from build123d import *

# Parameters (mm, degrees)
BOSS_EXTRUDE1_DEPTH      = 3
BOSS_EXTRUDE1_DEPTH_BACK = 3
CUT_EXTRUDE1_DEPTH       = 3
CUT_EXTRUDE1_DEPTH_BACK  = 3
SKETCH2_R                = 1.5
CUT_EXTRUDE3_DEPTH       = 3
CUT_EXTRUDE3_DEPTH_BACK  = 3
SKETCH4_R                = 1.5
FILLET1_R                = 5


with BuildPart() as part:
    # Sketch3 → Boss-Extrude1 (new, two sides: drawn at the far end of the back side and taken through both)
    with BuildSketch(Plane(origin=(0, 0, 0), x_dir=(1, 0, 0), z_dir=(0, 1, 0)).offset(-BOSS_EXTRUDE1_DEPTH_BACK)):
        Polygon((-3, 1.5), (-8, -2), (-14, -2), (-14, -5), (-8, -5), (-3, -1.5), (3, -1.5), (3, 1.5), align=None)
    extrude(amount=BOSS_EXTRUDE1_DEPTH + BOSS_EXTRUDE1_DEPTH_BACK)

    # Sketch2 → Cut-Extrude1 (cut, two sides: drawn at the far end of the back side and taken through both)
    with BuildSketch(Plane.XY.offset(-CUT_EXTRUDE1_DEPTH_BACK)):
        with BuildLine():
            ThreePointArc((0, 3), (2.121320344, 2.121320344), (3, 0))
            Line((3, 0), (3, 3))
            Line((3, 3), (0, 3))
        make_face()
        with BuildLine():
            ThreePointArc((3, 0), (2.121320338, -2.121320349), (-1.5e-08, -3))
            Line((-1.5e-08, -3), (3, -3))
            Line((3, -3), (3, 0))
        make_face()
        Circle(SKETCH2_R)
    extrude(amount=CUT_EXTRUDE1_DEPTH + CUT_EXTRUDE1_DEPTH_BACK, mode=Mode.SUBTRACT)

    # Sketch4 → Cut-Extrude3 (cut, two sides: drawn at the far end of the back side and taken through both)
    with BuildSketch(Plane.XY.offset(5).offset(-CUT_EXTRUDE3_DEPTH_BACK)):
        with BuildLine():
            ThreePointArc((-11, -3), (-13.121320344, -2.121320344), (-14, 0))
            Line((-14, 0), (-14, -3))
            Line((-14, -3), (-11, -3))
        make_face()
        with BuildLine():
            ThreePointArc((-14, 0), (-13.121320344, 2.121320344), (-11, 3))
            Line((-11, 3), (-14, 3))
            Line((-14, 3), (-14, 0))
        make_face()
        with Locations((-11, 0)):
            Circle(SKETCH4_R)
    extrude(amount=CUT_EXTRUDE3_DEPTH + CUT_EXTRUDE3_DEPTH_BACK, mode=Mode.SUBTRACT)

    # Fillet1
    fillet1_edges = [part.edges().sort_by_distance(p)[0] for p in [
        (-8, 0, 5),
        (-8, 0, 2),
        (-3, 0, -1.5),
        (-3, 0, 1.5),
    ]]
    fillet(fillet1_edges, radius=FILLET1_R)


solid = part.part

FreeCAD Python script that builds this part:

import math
import FreeCAD as App
import Part
import Sketcher

V = App.Vector
Q = App.Units.Quantity


def edges_at(feature, points):
    """Names of the edges that pass closest to the given points."""
    edges = feature.Shape.Edges
    near = lambda p: min(range(len(edges)), key=lambda i: edges[i].distToShape(Part.Vertex(*p))[0])
    return sorted({f"Edge{near(p) + 1}" for p in points})


def add_polygon(sketch, points):
    """Adds a closed chain of lines whose ends are joined by coincident constraints."""
    first, n = sketch.GeometryCount, len(points)
    for a, b in zip(points, points[1:] + points[:1]):
        sketch.addGeometry(Part.LineSegment(App.Vector(*a, 0), App.Vector(*b, 0)), False)
    for i in range(n):
        sketch.addConstraint(Sketcher.Constraint("Coincident", first + i, 2, first + (i + 1) % n, 1))

doc = App.newDocument("Part")
body = doc.addObject("PartDesign::Body", "Body")

sketch1 = body.newObject("Sketcher::SketchObject", "Sketch")
sketch1.AttachmentSupport = (doc.getObject("XZ_Plane"), [""])
sketch1.MapMode = "FlatFace"
add_polygon(sketch1, [(-3, -1.5), (-8, 2), (-14, 2), (-14, 5), (-8, 5), (-3, 1.5), (3, 1.5), (3, -1.5)])
sketch1.addConstraint(Sketcher.Constraint("Horizontal", 1))
sketch1.addConstraint(Sketcher.Constraint("Vertical", 2))
sketch1.addConstraint(Sketcher.Constraint("Horizontal", 3))
sketch1.addConstraint(Sketcher.Constraint("Horizontal", 5))
sketch1.addConstraint(Sketcher.Constraint("Vertical", 6))
sketch1.addConstraint(Sketcher.Constraint("Horizontal", 7))
sketch1.addConstraint(Sketcher.Constraint("Symmetric", 4, 2, 6, 2, -1, 1))
sketch1.addConstraint(Sketcher.Constraint("Parallel", 0, 4))
sketch1.addConstraint(Sketcher.Constraint("Vertical", 0, 2, 3, 2))
sketch1.addConstraint(Sketcher.Constraint("Vertical", 4, 2, 7, 2))
sketch1.addConstraint(Sketcher.Constraint("Equal", 3, 5))
sketch1.addConstraint(Sketcher.Constraint("DistanceX", 1, 2, 1, 1, Q("6 mm")))
sketch1.addConstraint(Sketcher.Constraint("DistanceY", 2, 1, 2, 2, Q("3 mm")))
sketch1.addConstraint(Sketcher.Constraint("DistanceX", 0, 2, -1, 1, Q("8 mm")))
sketch1.addConstraint(Sketcher.Constraint("DistanceY", -1, 1, 0, 2, Q("2 mm")))
pad1 = body.newObject("PartDesign::Pad", "Pad")
pad1.Profile = sketch1
pad1.Type = "TwoLengths"
pad1.Length = 3
pad1.Length2 = 3
pad1.Reversed = True

sketch2 = body.newObject("Sketcher::SketchObject", "Sketch001")
sketch2.AttachmentSupport = (doc.getObject("XY_Plane"), [""])
sketch2.MapMode = "FlatFace"
sketch2.addGeometry(Part.ArcOfCircle(Part.Circle(V(0, 0, 0), V(0, 0, 1), 3), math.radians(0), math.radians(90)), False)
sketch2.addGeometry(Part.LineSegment(V(3, 0, 0), V(3, 3, 0)), False)
sketch2.addGeometry(Part.LineSegment(V(3, 3, 0), V(0, 3, 0)), False)
sketch2.addGeometry(Part.ArcOfCircle(Part.Circle(V(0, 0, 0), V(0, 0, 1), 3), math.radians(-90), math.radians(0)), False)
sketch2.addGeometry(Part.LineSegment(V(0, -3, 0), V(3, -3, 0)), False)
sketch2.addGeometry(Part.LineSegment(V(3, -3, 0), V(3, 0, 0)), False)
sketch2.addGeometry(Part.Circle(V(0, 0, 0), V(0, 0, 1), 1.5), False)
sketch2.addConstraint(Sketcher.Constraint("Tangent", 0, 1, 1, 1))
sketch2.addConstraint(Sketcher.Constraint("Coincident", 1, 2, 2, 1))
sketch2.addConstraint(Sketcher.Constraint("Tangent", 2, 2, 0, 2))
sketch2.addConstraint(Sketcher.Constraint("Tangent", 3, 1, 4, 1))
sketch2.addConstraint(Sketcher.Constraint("Coincident", 4, 2, 5, 1))
sketch2.addConstraint(Sketcher.Constraint("Tangent", 5, 2, 3, 2))
sketch2.addConstraint(Sketcher.Constraint("Vertical", 1))
sketch2.addConstraint(Sketcher.Constraint("Horizontal", 2))
sketch2.addConstraint(Sketcher.Constraint("Horizontal", 4))
sketch2.addConstraint(Sketcher.Constraint("Vertical", 5))
sketch2.addConstraint(Sketcher.Constraint("Coincident", 0, 3, -1, 1))
sketch2.addConstraint(Sketcher.Constraint("Coincident", 3, 3, -1, 1))
sketch2.addConstraint(Sketcher.Constraint("Coincident", 6, 3, -1, 1))
sketch2.addConstraint(Sketcher.Constraint("Equal", 0, 3))
sketch2.addConstraint(Sketcher.Constraint("Diameter", 6, Q("3 mm")))
sketch2.addConstraint(Sketcher.Constraint("Radius", 0, Q("3 mm")))
pocket1 = body.newObject("PartDesign::Pocket", "Pocket")
pocket1.Profile = sketch2
pocket1.Type = "ThroughAll"
pocket1.Midplane = True

sketch3 = body.newObject("Sketcher::SketchObject", "Sketch002")
sketch3.AttachmentSupport = (doc.getObject("XY_Plane"), [""])
sketch3.MapMode = "FlatFace"
sketch3.AttachmentOffset = App.Placement(V(0, 0, 5), App.Rotation())
sketch3.addGeometry(Part.ArcOfCircle(Part.Circle(V(-11, 0, 0), V(0, 0, 1), 3), math.radians(180), math.radians(270)), False)
sketch3.addGeometry(Part.LineSegment(V(-14, 0, 0), V(-14, -3, 0)), False)
sketch3.addGeometry(Part.LineSegment(V(-14, -3, 0), V(-11, -3, 0)), False)
sketch3.addGeometry(Part.ArcOfCircle(Part.Circle(V(-11, 0, 0), V(0, 0, 1), 3), math.radians(90), math.radians(180)), False)
sketch3.addGeometry(Part.LineSegment(V(-11, 3, 0), V(-14, 3, 0)), False)
sketch3.addGeometry(Part.LineSegment(V(-14, 3, 0), V(-14, 0, 0)), False)
sketch3.addGeometry(Part.Circle(V(-11, 0, 0), V(0, 0, 1), 1.5), False)
sketch3.addConstraint(Sketcher.Constraint("Tangent", 0, 1, 1, 1))
sketch3.addConstraint(Sketcher.Constraint("Coincident", 1, 2, 2, 1))
sketch3.addConstraint(Sketcher.Constraint("Tangent", 2, 2, 0, 2))
sketch3.addConstraint(Sketcher.Constraint("Tangent", 3, 1, 4, 1))
sketch3.addConstraint(Sketcher.Constraint("Coincident", 4, 2, 5, 1))
sketch3.addConstraint(Sketcher.Constraint("Tangent", 5, 2, 3, 2))
sketch3.addConstraint(Sketcher.Constraint("Vertical", 1))
sketch3.addConstraint(Sketcher.Constraint("Horizontal", 2))
sketch3.addConstraint(Sketcher.Constraint("Horizontal", 4))
sketch3.addConstraint(Sketcher.Constraint("Vertical", 5))
sketch3.addConstraint(Sketcher.Constraint("Coincident", 3, 3, 0, 3))
sketch3.addConstraint(Sketcher.Constraint("Coincident", 6, 3, 0, 3))
sketch3.addConstraint(Sketcher.Constraint("Equal", 0, 3))
sketch3.addConstraint(Sketcher.Constraint("PointOnObject", 0, 3, -1))
sketch3.addConstraint(Sketcher.Constraint("Diameter", 6, Q("3 mm")))
sketch3.addConstraint(Sketcher.Constraint("Radius", 0, Q("3 mm")))
sketch3.addConstraint(Sketcher.Constraint("DistanceX", 0, 3, -1, 1, Q("11 mm")))
pocket2 = body.newObject("PartDesign::Pocket", "Pocket001")
pocket2.Profile = sketch3
pocket2.Type = "ThroughAll"
pocket2.Midplane = True
doc.recompute()

fillet = body.newObject("PartDesign::Fillet", "Fillet")
fillet.Base = (pocket2, edges_at(pocket2, [
    (-8, 0, 5),
    (-8, 0, 2),
    (-3, 0, -1.5),
    (-3, 0, 1.5),
]))
fillet.Radius = 5

doc.recompute()
